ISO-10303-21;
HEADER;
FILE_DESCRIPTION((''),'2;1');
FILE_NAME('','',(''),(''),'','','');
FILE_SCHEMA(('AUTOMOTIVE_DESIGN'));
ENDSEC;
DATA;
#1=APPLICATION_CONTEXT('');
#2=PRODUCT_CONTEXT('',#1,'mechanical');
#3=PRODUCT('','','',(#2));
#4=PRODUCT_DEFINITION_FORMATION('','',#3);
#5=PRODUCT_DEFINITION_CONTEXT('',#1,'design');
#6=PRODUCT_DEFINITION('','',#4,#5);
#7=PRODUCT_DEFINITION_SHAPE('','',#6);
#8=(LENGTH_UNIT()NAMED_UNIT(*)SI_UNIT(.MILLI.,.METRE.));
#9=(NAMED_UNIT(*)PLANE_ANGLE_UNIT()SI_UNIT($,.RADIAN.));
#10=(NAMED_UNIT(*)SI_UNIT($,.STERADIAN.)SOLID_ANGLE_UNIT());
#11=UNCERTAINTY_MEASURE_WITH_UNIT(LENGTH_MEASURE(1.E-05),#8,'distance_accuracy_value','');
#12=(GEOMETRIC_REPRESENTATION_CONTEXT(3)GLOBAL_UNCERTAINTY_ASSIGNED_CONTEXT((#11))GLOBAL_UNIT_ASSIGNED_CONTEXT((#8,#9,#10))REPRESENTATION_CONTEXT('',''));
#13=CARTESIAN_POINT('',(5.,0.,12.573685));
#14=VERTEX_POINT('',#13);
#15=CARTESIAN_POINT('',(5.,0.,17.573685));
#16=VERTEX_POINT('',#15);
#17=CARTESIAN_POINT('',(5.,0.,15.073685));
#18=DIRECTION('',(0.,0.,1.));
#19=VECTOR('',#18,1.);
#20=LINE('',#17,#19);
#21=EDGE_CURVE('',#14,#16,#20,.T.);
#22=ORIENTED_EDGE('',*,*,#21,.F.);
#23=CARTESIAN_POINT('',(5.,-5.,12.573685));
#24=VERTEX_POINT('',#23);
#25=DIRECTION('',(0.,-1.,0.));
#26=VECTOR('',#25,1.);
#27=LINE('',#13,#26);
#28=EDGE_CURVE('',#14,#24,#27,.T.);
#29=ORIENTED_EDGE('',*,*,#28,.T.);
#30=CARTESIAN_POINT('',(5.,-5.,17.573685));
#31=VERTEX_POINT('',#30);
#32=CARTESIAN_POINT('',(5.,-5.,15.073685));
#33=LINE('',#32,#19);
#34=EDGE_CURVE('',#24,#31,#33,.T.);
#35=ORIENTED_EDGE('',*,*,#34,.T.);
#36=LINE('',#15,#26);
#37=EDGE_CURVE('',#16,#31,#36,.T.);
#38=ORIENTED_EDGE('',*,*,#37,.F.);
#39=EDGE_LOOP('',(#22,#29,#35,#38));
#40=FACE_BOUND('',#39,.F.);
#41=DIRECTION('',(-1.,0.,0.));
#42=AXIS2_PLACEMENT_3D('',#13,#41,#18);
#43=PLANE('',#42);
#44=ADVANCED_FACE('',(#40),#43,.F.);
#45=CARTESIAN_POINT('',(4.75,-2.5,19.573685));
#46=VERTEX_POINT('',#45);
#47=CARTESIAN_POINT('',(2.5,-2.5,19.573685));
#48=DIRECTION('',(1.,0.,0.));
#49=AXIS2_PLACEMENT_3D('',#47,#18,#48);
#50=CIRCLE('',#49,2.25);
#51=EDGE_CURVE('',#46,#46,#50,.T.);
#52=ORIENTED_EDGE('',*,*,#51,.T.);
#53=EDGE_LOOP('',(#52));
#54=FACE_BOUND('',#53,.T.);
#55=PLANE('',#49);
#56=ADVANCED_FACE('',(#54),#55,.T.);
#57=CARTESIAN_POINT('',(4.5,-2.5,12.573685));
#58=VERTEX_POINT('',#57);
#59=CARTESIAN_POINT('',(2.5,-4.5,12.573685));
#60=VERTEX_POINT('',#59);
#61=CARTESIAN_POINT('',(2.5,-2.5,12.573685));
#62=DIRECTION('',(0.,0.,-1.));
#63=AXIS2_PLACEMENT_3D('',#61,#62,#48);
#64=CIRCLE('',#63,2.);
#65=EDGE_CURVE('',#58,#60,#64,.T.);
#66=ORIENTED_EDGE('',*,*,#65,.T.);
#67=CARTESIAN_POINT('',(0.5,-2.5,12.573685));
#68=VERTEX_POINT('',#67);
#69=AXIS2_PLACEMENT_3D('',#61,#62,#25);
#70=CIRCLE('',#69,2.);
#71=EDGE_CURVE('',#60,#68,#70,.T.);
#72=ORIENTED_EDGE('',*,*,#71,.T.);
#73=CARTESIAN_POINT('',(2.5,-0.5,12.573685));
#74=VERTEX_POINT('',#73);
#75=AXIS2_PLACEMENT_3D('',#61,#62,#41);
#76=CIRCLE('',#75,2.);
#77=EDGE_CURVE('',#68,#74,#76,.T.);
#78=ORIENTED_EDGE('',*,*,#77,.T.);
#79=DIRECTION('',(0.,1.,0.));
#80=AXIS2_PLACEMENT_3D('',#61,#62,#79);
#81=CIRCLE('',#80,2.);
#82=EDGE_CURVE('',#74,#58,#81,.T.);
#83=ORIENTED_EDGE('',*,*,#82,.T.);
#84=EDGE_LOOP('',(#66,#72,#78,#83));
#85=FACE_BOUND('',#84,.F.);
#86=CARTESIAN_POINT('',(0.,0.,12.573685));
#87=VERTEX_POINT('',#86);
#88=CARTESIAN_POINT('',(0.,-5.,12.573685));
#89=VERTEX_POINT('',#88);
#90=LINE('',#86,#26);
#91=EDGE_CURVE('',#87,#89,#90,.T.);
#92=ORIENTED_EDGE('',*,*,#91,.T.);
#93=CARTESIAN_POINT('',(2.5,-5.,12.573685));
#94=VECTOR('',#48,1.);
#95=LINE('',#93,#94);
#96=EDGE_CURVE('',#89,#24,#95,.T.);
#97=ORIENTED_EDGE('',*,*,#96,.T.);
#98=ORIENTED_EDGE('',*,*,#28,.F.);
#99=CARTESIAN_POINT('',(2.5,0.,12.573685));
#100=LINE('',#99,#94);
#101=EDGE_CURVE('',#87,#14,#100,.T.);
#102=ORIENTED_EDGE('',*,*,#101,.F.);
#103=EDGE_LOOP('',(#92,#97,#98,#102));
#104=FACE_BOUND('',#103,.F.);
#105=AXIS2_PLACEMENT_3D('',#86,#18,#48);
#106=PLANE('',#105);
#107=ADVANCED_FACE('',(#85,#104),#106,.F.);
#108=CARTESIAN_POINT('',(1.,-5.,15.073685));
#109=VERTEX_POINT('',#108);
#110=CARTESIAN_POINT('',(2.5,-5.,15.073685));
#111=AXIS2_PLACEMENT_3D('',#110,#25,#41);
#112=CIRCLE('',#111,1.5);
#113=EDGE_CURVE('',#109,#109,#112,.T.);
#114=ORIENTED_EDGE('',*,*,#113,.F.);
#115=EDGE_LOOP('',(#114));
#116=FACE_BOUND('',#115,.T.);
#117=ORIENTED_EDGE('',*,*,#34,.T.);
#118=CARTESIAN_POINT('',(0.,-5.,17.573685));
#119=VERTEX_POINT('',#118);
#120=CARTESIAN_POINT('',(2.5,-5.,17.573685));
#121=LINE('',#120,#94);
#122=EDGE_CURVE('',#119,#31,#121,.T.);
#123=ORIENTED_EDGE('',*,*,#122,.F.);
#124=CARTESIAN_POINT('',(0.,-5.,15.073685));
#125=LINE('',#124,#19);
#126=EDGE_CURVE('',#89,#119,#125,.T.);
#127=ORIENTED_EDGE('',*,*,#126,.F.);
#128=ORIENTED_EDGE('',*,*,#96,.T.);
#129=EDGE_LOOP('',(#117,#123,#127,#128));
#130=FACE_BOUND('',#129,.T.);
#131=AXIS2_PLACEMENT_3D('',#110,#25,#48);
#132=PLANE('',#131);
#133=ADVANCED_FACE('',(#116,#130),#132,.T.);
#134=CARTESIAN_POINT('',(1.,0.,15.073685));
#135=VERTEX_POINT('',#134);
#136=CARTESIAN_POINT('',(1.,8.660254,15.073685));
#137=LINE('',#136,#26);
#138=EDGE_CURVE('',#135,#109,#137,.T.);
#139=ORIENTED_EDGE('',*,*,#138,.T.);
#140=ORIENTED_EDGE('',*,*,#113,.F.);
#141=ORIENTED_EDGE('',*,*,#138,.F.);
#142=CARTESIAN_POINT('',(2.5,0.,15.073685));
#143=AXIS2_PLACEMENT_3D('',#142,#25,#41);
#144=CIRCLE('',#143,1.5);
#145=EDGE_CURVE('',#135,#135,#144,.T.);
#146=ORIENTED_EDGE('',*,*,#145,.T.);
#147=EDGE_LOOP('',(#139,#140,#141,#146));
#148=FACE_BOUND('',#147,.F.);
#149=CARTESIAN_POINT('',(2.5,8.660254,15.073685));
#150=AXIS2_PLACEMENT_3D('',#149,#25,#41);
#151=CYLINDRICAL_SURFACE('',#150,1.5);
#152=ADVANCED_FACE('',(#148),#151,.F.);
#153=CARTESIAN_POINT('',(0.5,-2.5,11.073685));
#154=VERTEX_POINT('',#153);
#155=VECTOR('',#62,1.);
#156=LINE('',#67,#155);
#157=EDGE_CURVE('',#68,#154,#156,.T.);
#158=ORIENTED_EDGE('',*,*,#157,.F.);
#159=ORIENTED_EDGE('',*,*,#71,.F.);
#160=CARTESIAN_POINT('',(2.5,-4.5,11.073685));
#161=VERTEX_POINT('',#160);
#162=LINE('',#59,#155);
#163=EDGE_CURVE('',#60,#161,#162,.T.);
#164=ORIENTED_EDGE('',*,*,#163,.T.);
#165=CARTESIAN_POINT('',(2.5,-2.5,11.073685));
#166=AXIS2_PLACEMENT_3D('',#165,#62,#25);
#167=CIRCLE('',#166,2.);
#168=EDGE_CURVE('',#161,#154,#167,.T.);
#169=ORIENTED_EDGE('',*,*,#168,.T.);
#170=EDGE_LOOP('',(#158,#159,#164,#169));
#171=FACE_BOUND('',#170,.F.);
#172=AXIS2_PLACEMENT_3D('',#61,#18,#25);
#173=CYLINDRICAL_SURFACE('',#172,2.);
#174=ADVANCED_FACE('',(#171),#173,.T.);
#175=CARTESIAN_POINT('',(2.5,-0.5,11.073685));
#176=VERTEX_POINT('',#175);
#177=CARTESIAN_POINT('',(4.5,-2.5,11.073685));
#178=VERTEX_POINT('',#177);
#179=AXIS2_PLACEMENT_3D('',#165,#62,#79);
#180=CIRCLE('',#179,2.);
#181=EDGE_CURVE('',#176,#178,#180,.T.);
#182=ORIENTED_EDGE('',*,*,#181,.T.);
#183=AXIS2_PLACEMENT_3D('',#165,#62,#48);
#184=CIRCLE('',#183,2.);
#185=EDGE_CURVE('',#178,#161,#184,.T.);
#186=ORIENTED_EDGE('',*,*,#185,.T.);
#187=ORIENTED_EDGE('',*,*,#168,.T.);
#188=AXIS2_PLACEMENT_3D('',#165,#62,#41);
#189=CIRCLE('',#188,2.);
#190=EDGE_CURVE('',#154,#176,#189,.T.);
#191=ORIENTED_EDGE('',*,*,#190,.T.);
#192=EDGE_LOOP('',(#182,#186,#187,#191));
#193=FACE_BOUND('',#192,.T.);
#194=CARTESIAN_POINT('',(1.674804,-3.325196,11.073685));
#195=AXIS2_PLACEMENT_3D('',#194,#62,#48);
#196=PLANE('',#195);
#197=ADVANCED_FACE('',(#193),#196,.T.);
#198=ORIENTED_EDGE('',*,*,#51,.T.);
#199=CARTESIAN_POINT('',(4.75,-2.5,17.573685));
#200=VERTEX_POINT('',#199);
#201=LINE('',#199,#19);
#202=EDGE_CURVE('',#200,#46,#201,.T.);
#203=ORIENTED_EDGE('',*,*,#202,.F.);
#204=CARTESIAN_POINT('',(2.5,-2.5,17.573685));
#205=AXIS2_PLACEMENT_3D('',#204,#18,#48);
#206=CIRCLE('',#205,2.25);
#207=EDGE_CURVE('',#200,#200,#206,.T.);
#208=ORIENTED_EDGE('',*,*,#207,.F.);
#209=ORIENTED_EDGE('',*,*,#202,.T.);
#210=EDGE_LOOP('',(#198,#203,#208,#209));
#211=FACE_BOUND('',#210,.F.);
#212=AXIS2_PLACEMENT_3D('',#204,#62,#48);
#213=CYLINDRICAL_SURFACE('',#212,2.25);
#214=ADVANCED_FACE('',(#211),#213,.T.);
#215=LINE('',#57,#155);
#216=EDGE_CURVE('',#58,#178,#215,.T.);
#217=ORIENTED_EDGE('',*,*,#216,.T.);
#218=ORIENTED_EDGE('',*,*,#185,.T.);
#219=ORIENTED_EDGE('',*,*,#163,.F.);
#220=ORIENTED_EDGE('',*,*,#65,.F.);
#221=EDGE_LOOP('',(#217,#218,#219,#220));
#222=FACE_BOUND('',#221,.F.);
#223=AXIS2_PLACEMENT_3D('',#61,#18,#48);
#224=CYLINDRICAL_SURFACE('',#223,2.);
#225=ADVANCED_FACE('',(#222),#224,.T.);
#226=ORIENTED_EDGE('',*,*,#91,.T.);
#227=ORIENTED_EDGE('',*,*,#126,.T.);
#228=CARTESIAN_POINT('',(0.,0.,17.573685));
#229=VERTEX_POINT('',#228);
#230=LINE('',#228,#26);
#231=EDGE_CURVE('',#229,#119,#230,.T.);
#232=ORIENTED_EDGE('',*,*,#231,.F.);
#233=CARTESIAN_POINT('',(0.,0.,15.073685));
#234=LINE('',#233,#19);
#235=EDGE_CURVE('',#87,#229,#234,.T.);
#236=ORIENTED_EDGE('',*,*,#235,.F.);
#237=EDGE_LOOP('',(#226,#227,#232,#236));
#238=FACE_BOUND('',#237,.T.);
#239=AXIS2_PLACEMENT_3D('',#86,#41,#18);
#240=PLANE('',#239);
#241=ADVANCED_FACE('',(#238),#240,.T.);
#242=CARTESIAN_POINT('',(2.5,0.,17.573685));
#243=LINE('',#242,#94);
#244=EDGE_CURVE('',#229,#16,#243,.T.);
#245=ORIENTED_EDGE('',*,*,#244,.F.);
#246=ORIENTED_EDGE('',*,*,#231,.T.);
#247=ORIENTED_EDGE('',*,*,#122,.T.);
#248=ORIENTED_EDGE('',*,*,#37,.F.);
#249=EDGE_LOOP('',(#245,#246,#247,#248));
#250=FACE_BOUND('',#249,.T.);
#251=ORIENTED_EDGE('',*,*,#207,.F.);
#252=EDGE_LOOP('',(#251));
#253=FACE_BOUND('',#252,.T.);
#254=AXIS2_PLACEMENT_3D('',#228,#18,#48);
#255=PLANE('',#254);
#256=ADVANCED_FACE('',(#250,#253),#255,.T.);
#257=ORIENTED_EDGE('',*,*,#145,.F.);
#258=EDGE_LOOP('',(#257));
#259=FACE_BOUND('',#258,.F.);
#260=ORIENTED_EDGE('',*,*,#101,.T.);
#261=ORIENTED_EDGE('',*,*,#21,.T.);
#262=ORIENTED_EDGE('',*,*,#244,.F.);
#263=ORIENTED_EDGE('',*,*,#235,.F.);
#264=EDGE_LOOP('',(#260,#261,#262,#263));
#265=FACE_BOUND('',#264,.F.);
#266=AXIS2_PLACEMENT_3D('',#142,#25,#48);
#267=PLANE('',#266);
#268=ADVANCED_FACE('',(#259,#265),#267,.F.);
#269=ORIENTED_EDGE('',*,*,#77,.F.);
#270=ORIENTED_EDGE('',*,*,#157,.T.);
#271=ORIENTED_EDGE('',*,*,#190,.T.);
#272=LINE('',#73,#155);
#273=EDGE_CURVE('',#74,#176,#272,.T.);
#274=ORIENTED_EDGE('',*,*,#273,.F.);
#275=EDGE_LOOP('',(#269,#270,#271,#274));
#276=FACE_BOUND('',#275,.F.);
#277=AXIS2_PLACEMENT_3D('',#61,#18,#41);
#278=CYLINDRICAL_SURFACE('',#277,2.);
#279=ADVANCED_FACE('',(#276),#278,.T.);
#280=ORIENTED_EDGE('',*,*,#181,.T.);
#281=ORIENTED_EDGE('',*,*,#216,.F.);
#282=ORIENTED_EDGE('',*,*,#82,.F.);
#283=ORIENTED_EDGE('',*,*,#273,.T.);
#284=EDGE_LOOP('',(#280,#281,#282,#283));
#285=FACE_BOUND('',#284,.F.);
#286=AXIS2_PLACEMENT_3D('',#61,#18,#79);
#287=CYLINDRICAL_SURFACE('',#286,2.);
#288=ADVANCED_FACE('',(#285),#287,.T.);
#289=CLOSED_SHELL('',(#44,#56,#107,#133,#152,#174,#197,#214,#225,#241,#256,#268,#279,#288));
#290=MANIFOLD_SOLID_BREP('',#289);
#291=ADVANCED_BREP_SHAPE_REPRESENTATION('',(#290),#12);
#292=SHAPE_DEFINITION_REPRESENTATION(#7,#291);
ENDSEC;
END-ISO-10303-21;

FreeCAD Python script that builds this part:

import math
import FreeCAD as App
import Part
import Sketcher
from FreeCAD import Vector


def add_polygon(sketch, points):
    """Adds a closed chain of lines whose ends are joined by coincident constraints."""
    first, n = sketch.GeometryCount, len(points)
    for a, b in zip(points, points[1:] + points[:1]):
        sketch.addGeometry(Part.LineSegment(App.Vector(*a, 0), App.Vector(*b, 0)), False)
    for i in range(n):
        sketch.addConstraint(Sketcher.Constraint("Coincident", first + i, 2, first + (i + 1) % n, 1))

doc = App.newDocument("Part")
body = doc.addObject("PartDesign::Body", "Body")

# Sketch on XZ plane
sketch1 = body.newObject("Sketcher::SketchObject", "Sketch")
sketch1.AttachmentSupport = (doc.getObject("XZ_Plane"), [""])
sketch1.MapMode = "FlatFace"
add_polygon(sketch1, [(0, 18), (0, 13), (5, 13), (5, 18)])  # lines 0-3
sketch1.addConstraint([
    Sketcher.Constraint("Vertical", 0),
    Sketcher.Constraint("Horizontal", 1),
    Sketcher.Constraint("Vertical", 2),
    Sketcher.Constraint("Horizontal", 3),
    Sketcher.Constraint("PointOnObject", 0, 2, -2),
    Sketcher.Constraint("Equal", 3, 0),
    Sketcher.Constraint("DistanceX", 1, 1, 1, 2, 5.0),
    Sketcher.Constraint("DistanceY", -1, 1, 0, 2, 12.573685),
])
pad1 = body.newObject("PartDesign::Pad", "Pad")
pad1.Profile = sketch1
pad1.Length = 5

# Sketch on XZ plane
sketch2 = body.newObject("Sketcher::SketchObject", "Sketch001")
sketch2.AttachmentSupport = (doc.getObject("XZ_Plane"), [""])
sketch2.MapMode = "FlatFace"
sketch2.addGeometry(Part.Circle(Vector(2.5, 15.1, 0), Vector(0, 0, 1), 1.5), False)
sketch2.addConstraint([
    Sketcher.Constraint("Diameter", 0, 3.0),
    Sketcher.Constraint("DistanceX", -1, 1, 0, 3, 2.5),
    Sketcher.Constraint("DistanceY", -1, 1, 0, 3, 15.073685),
])
doc.recompute()
hole = body.newObject("PartDesign::Hole", "Hole")
hole.Profile = sketch2
hole.ThreadType = "None"
hole.Diameter = 3
hole.DepthType = "ThroughAll"
hole.Reversed = True

# Sketch on XY plane
sketch3 = body.newObject("Sketcher::SketchObject", "Sketch002")
sketch3.AttachmentSupport = (doc.getObject("XY_Plane"), [""])
sketch3.MapMode = "FlatFace"
sketch3.AttachmentOffset = App.Placement(Vector(0, 0, 17.573685), App.Rotation())
sketch3.addGeometry(Part.Circle(Vector(2.5, -2.5, 0), Vector(0, 0, 1), 2.2), False)
sketch3.addConstraint([
    Sketcher.Constraint("Diameter", 0, 4.5),
    Sketcher.Constraint("DistanceX", -1, 1, 0, 3, 2.5),
    Sketcher.Constraint("DistanceY", 0, 3, -1, 1, 2.5),
])
pad2 = body.newObject("PartDesign::Pad", "Pad001")
pad2.Profile = sketch3
pad2.Length = 2

# Sketch on XY plane
sketch4 = body.newObject("Sketcher::SketchObject", "Sketch003")
sketch4.AttachmentSupport = (doc.getObject("XY_Plane"), [""])
sketch4.MapMode = "FlatFace"
sketch4.AttachmentOffset = App.Placement(Vector(0, 0, 12.573685), App.Rotation())
sketch4.addGeometry([
    Part.ArcOfCircle(Part.Circle(Vector(2.5, -2.5, 0), Vector(0, 0, 1), 2), math.radians(180), math.radians(270)),
    Part.ArcOfCircle(Part.Circle(Vector(2.5, -2.5, 0), Vector(0, 0, 1), 2), math.radians(90), math.radians(180)),
    Part.ArcOfCircle(Part.Circle(Vector(2.5, -2.5, 0), Vector(0, 0, 1), 2), math.radians(0), math.radians(90)),
    Part.ArcOfCircle(Part.Circle(Vector(2.5, -2.5, 0), Vector(0, 0, 1), 2), math.radians(-90), math.radians(0)),
], False)
sketch4.addConstraint([
    Sketcher.Constraint("Tangent", 0, 1, 1, 2),
    Sketcher.Constraint("Tangent", 1, 1, 2, 2),
    Sketcher.Constraint("Tangent", 2, 1, 3, 2),
    Sketcher.Constraint("Tangent", 3, 1, 0, 2),
    Sketcher.Constraint("Equal", 0, 1),
    Sketcher.Constraint("Horizontal", 3, 3, 0, 1),
    Sketcher.Constraint("Horizontal", 0, 1, 2, 1),
    Sketcher.Constraint("Vertical", 3, 3, 1, 1),
    Sketcher.Constraint("Vertical", 1, 1, 3, 1),
    Sketcher.Constraint("Radius", 0, 2.0),
    Sketcher.Constraint("DistanceX", -1, 1, 0, 3, 2.5),
    Sketcher.Constraint("DistanceY", 0, 3, -1, 1, 2.5),
])
pad3 = body.newObject("PartDesign::Pad", "Pad002")
pad3.Profile = sketch4
pad3.Length = 1.5
pad3.Reversed = True

doc.recompute()
